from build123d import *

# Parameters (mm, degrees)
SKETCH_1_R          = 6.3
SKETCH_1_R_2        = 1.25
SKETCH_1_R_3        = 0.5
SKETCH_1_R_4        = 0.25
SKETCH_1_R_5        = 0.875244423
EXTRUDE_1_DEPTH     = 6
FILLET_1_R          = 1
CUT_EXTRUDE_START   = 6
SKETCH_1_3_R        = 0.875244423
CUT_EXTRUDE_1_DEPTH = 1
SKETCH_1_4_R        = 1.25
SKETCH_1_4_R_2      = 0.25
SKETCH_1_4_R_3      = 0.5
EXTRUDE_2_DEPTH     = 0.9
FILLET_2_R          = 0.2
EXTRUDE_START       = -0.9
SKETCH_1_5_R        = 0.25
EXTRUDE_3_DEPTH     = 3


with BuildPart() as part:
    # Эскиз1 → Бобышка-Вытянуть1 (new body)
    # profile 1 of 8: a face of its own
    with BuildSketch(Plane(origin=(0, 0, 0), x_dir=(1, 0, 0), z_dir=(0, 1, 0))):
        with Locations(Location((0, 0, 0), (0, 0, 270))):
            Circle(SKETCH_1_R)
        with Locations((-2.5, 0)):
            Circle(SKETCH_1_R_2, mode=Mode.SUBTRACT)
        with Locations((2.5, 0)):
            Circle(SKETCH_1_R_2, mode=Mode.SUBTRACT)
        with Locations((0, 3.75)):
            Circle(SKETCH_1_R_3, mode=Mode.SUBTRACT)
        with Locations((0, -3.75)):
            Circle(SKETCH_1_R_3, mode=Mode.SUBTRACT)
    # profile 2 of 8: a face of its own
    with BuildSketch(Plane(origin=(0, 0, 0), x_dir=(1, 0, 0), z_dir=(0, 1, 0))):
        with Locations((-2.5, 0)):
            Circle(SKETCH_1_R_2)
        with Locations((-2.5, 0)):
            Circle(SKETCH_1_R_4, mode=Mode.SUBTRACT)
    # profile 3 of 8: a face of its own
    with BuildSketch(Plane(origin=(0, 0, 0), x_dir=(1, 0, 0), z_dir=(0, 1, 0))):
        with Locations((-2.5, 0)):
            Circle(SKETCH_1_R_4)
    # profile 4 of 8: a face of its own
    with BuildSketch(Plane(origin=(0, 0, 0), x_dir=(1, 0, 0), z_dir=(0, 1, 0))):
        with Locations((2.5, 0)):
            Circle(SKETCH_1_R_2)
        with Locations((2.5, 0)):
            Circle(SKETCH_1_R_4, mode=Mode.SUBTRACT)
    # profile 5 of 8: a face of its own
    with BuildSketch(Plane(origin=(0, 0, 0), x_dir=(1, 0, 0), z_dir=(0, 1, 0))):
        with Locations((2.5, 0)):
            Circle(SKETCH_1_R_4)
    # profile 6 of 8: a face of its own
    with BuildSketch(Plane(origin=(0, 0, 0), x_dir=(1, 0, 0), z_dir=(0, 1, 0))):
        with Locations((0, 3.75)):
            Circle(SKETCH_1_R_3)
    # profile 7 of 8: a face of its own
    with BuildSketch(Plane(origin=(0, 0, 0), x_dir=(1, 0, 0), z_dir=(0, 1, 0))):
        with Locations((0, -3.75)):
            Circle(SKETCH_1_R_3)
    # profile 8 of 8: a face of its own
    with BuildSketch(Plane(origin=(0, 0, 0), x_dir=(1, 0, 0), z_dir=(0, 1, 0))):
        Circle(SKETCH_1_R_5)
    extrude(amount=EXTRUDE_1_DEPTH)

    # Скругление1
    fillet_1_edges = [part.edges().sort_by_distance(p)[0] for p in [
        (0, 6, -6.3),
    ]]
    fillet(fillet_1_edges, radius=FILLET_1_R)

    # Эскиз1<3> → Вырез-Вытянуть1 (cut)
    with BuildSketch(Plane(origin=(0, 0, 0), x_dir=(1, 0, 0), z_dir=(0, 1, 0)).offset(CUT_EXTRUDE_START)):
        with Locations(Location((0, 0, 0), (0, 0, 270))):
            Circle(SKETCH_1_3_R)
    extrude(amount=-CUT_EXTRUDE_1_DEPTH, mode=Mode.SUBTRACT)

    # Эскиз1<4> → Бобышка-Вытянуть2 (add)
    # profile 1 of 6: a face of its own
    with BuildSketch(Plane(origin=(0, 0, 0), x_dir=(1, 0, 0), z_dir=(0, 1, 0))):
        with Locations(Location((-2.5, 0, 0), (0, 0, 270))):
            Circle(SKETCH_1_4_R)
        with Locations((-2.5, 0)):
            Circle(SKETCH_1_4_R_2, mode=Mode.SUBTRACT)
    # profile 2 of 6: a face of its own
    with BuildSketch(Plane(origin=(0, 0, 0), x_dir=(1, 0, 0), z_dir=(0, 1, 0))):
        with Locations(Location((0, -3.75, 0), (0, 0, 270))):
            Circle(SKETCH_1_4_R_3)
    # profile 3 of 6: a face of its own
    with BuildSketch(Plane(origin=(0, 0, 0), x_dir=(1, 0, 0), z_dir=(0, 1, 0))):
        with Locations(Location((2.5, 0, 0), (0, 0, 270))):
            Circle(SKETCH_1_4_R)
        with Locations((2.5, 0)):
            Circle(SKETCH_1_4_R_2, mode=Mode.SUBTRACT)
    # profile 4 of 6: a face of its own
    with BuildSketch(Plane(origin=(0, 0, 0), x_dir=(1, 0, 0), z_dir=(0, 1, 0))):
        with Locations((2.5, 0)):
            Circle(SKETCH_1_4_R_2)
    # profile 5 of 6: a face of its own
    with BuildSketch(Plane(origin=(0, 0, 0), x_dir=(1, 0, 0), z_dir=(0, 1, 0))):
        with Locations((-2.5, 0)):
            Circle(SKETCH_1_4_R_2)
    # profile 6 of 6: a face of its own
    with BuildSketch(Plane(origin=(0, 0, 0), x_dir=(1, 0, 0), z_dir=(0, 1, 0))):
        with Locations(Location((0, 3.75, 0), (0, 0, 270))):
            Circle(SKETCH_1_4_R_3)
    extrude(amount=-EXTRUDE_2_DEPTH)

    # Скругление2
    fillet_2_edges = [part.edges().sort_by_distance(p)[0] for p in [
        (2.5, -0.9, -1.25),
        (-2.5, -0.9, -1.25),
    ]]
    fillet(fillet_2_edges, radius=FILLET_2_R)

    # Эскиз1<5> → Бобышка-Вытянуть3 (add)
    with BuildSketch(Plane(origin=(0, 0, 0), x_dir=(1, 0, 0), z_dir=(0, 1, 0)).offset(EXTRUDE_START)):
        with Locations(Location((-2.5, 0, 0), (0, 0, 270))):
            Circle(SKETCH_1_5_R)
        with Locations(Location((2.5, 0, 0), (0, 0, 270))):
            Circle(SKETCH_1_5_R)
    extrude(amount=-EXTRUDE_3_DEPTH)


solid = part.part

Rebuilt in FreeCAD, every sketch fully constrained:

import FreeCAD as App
import Part
import Sketcher


def edges_at(feature, points):
    """Names of the edges that pass closest to the given points."""
    edges = feature.Shape.Edges
    near = lambda p: min(range(len(edges)), key=lambda i: edges[i].distToShape(Part.Vertex(*p))[0])
    return sorted({f"Edge{near(p) + 1}" for p in points})

doc = App.newDocument("Part")
body = doc.addObject("PartDesign::Body", "Body")

# Sketch on XZ plane
sketch1 = doc.addObject("Sketcher::SketchObject", "Sketch")
body.addObject(sketch1)
sketch1.AttachmentSupport = (doc.XZ_Plane, [""])
sketch1.MapMode = "FlatFace"
sketch1.addGeometry(Part.Circle(App.Vector(0, 0, 0), App.Vector(0, 0, 1), 6), False)
sketch1.addConstraint(Sketcher.Constraint("Coincident", 0, 3, -1, 1))
sketch1.addConstraint(Sketcher.Constraint("Diameter", 0, 12.6))
pad1 = doc.addObject("PartDesign::Pad", "Pad")
body.addObject(pad1)
pad1.Profile = sketch1
pad1.Length = 6
pad1.Reversed = True
doc.recompute()

fillet = doc.addObject("PartDesign::Fillet", "Fillet")
body.addObject(fillet)
fillet.Base = (pad1, edges_at(pad1, [(0, 6, -6.3)]))
fillet.Radius = 1

# Sketch on XZ plane
sketch2 = doc.addObject("Sketcher::SketchObject", "Sketch001")
body.addObject(sketch2)
sketch2.AttachmentSupport = (doc.XZ_Plane, [""])
sketch2.MapMode = "FlatFace"
sketch2.AttachmentOffset = App.Placement(App.Vector(0, 0, -6), App.Rotation())
sketch2.addGeometry(Part.Circle(App.Vector(0, 0, 0), App.Vector(0, 0, 1), 0.9), False)
sketch2.addConstraint(Sketcher.Constraint("Coincident", 0, 3, -1, 1))
sketch2.addConstraint(Sketcher.Constraint("Diameter", 0, 1.750489))
pocket1 = doc.addObject("PartDesign::Pocket", "Pocket")
body.addObject(pocket1)
pocket1.Profile = sketch2
pocket1.Length = 1
pocket1.Reversed = True

# Sketch on XZ plane
sketch3 = doc.addObject("Sketcher::SketchObject", "Sketch002")
body.addObject(sketch3)
sketch3.AttachmentSupport = (doc.XZ_Plane, [""])
sketch3.MapMode = "FlatFace"
sketch3.addGeometry(Part.Circle(App.Vector(-2.5, 0, 0), App.Vector(0, 0, 1), 1.2), False)
sketch3.addGeometry(Part.Circle(App.Vector(0, 3.8, 0), App.Vector(0, 0, 1), 0.5), False)
sketch3.addGeometry(Part.Circle(App.Vector(2.5, 0, 0), App.Vector(0, 0, 1), 1.2), False)
sketch3.addGeometry(Part.Circle(App.Vector(0, -3.8, 0), App.Vector(0, 0, 1), 0.5), False)
sketch3.addConstraint(Sketcher.Constraint("Equal", 0, 2))
sketch3.addConstraint(Sketcher.Constraint("Equal", 1, 3))
sketch3.addConstraint(Sketcher.Constraint("Symmetric", 0, 3, 2, 3, -1, 1))
sketch3.addConstraint(Sketcher.Constraint("Symmetric", 1, 3, 3, 3, -1, 1))
sketch3.addConstraint(Sketcher.Constraint("PointOnObject", 0, 3, -1))
sketch3.addConstraint(Sketcher.Constraint("PointOnObject", 1, 3, -2))
sketch3.addConstraint(Sketcher.Constraint("Diameter", 1, 1.0))
sketch3.addConstraint(Sketcher.Constraint("Diameter", 0, 2.5))
sketch3.addConstraint(Sketcher.Constraint("DistanceX", 0, 3, 2, 3, 5.0))
sketch3.addConstraint(Sketcher.Constraint("DistanceY", 3, 3, 1, 3, 7.5))
pad2 = doc.addObject("PartDesign::Pad", "Pad001")
body.addObject(pad2)
pad2.Profile = sketch3
pad2.Length = 0.9
doc.recompute()

fillet2 = doc.addObject("PartDesign::Fillet", "Fillet001")
body.addObject(fillet2)
fillet2.Base = (pad2, edges_at(pad2, [(2.5, -0.9, -1.25), (-2.5, -0.9, -1.25)]))
fillet2.Radius = 0.2

# Sketch on XZ plane
sketch4 = doc.addObject("Sketcher::SketchObject", "Sketch003")
body.addObject(sketch4)
sketch4.AttachmentSupport = (doc.XZ_Plane, [""])
sketch4.MapMode = "FlatFace"
sketch4.AttachmentOffset = App.Placement(App.Vector(0, 0, 0.9), App.Rotation())
sketch4.addGeometry(Part.Circle(App.Vector(-2.5, 0, 0), App.Vector(0, 0, 1), 0.25), False)
sketch4.addGeometry(Part.Circle(App.Vector(2.5, 0, 0), App.Vector(0, 0, 1), 0.25), False)
sketch4.addConstraint(Sketcher.Constraint("Equal", 0, 1))
sketch4.addConstraint(Sketcher.Constraint("Symmetric", 0, 3, 1, 3, -1, 1))
sketch4.addConstraint(Sketcher.Constraint("PointOnObject", 0, 3, -1))
sketch4.addConstraint(Sketcher.Constraint("Diameter", 0, 0.5))
sketch4.addConstraint(Sketcher.Constraint("DistanceX", 0, 3, 1, 3, 5.0))
pad3 = doc.addObject("PartDesign::Pad", "Pad002")
body.addObject(pad3)
pad3.Profile = sketch4
pad3.Length = 3

doc.recompute()
